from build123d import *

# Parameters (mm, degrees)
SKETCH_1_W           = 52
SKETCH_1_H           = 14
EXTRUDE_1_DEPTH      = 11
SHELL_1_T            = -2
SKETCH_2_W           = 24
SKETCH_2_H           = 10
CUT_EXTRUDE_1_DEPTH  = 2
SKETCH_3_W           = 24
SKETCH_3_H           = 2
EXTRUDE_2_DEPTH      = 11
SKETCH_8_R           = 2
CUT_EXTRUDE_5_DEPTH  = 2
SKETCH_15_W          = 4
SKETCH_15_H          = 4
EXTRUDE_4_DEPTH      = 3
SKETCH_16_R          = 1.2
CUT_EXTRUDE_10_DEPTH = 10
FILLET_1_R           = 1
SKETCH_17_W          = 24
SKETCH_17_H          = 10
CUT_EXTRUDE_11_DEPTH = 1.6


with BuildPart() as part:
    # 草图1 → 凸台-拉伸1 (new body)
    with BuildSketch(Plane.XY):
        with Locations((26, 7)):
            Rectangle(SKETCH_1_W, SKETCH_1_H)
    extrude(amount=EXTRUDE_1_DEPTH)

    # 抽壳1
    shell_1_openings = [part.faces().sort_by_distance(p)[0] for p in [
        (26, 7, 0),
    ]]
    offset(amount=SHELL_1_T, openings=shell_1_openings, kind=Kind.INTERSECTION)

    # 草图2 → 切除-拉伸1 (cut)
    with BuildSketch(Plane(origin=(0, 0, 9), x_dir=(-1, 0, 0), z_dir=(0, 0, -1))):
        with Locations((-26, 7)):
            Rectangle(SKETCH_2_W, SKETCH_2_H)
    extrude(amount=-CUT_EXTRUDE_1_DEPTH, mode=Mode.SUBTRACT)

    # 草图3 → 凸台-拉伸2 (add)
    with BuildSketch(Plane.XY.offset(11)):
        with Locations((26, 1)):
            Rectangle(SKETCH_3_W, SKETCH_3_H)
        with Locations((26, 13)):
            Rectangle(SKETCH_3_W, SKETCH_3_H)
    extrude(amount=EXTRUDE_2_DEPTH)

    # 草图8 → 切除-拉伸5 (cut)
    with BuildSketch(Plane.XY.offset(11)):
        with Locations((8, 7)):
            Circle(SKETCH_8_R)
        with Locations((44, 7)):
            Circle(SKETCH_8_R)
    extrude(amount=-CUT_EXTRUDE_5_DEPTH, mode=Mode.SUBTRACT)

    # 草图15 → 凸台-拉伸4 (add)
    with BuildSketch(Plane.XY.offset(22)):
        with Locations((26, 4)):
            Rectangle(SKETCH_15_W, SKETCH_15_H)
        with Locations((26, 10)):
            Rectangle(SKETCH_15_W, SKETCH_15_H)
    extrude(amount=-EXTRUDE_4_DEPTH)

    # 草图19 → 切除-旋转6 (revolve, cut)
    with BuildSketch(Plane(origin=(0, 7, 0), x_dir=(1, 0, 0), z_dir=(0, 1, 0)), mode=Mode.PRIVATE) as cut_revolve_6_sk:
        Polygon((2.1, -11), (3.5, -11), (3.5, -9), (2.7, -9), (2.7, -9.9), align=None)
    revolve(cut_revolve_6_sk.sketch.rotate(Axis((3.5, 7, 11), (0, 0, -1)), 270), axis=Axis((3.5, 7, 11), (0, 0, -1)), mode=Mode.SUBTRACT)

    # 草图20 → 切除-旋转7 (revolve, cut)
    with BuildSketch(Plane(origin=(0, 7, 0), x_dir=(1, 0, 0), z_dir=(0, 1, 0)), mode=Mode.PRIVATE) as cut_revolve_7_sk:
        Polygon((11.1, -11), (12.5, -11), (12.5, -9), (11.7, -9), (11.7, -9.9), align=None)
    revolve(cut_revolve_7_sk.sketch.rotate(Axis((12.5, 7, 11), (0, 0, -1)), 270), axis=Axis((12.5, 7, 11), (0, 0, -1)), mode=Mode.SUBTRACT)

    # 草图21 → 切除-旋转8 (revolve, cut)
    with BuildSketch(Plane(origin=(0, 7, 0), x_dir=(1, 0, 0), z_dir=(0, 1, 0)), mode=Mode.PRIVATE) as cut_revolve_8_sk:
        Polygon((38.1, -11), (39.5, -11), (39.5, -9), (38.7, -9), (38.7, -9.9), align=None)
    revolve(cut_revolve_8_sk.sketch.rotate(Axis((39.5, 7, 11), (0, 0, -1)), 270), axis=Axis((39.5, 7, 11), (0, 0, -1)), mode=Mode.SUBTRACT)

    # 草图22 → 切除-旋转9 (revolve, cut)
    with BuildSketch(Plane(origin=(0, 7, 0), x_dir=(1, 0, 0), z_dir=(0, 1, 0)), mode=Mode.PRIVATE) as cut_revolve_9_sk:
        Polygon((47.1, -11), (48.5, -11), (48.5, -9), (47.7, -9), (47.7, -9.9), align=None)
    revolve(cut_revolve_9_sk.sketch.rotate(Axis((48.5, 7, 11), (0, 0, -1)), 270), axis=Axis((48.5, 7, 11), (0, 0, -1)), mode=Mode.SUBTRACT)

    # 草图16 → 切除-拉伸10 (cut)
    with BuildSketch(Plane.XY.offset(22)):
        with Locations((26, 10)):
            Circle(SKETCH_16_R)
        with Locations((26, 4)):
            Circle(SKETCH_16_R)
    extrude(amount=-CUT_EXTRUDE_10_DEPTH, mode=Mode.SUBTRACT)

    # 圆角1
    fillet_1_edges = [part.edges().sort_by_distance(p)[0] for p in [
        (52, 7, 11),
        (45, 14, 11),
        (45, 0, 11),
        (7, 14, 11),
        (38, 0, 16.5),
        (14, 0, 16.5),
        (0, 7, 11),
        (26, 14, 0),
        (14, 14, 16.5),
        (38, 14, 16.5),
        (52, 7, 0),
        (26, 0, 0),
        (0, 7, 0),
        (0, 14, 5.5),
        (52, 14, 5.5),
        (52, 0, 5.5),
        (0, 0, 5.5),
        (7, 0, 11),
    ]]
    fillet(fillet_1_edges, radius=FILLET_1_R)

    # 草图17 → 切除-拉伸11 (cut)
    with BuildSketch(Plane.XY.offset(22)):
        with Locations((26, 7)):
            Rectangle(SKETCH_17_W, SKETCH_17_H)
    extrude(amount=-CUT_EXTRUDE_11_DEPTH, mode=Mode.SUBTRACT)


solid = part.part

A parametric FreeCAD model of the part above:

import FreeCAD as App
import Part
import Sketcher


def edges_at(feature, points):
    """Names of the edges that pass closest to the given points."""
    edges = feature.Shape.Edges
    near = lambda p: min(range(len(edges)), key=lambda i: edges[i].distToShape(Part.Vertex(*p))[0])
    return sorted({f"Edge{near(p) + 1}" for p in points})


def faces_at(feature, points):
    """Names of the faces that lie closest to the given points."""
    faces = feature.Shape.Faces
    near = lambda p: min(range(len(faces)), key=lambda i: faces[i].distToShape(Part.Vertex(*p))[0])
    return sorted({f"Face{near(p) + 1}" for p in points})


def add_polygon(sketch, points):
    """Adds a closed chain of lines whose ends are joined by coincident constraints."""
    first, n = sketch.GeometryCount, len(points)
    for a, b in zip(points, points[1:] + points[:1]):
        sketch.addGeometry(Part.LineSegment(App.Vector(*a, 0), App.Vector(*b, 0)), False)
    for i in range(n):
        sketch.addConstraint(Sketcher.Constraint("Coincident", first + i, 2, first + (i + 1) % n, 1))

doc = App.newDocument("Part")
params = doc.addObject("Spreadsheet::Sheet", "Params")
for row, (alias, value) in enumerate([
    ("sketch1_width", "52 mm"),
    ("sketch1_height", "14 mm"),
    ("pad1_length", "11 mm"),
    ("thickness_wall", "2 mm"),
    ("sketch2_width", "24 mm"),
    ("sketch2_height", "10 mm"),
    ("pocket1_length", "2 mm"),
    ("sketch3_width", "24 mm"),
    ("sketch3_height", "2 mm"),
    ("pad2_length", "11 mm"),
    ("sketch4_diameter", "4 mm"),
    ("pocket2_length", "2 mm"),
    ("sketch5_width", "4 mm"),
    ("pad3_length", "3 mm"),
    ("sketch6_height", "2 mm"),
    ("sketch6_width", "1.4 mm"),
    ("sketch6_width2", "0.8 mm"),
    ("sketch6_height2", "0.9 mm"),
    ("groove_angle", "360 deg"),
    ("sketch7_height", "2 mm"),
    ("sketch7_width", "1.4 mm"),
    ("sketch7_width2", "0.8 mm"),
    ("sketch7_height2", "0.9 mm"),
    ("groove2_angle", "360 deg"),
    ("sketch8_height", "2 mm"),
    ("sketch8_width", "1.4 mm"),
    ("sketch8_width2", "0.8 mm"),
    ("sketch8_height2", "0.9 mm"),
    ("groove3_angle", "360 deg"),
    ("sketch9_height", "2 mm"),
    ("sketch9_width", "1.4 mm"),
    ("sketch9_width2", "0.8 mm"),
    ("sketch9_height2", "0.9 mm"),
    ("groove4_angle", "360 deg"),
    ("sketch10_diameter", "2.4 mm"),
    ("pocket3_length", "10 mm"),
    ("fillet_radius", "1 mm"),
    ("sketch11_width", "24 mm"),
    ("sketch11_height", "10 mm"),
    ("pocket4_length", "1.6 mm"),
], start=1):
    params.set(f"A{row}", alias)
    params.set(f"B{row}", "=" + value)
    params.setAlias(f"B{row}", alias)

body = doc.addObject("PartDesign::Body", "Body")

# Sketch on XY plane
sketch1 = body.newObject("Sketcher::SketchObject", "Sketch")
sketch1.AttachmentSupport = (doc.getObject("XY_Plane"), [""])
sketch1.MapMode = "FlatFace"
add_polygon(sketch1, [(0, 14), (0, 0), (52, 0), (52, 14)])  # lines 0-3
sketch1.addConstraint(Sketcher.Constraint("Vertical", 0))
sketch1.addConstraint(Sketcher.Constraint("Horizontal", 1))
sketch1.addConstraint(Sketcher.Constraint("Vertical", 2))
sketch1.addConstraint(Sketcher.Constraint("Horizontal", 3))
sketch1.addConstraint(Sketcher.Constraint("Coincident", 0, 2, -1, 1))
sketch1.addConstraint(Sketcher.Constraint("DistanceX", 1, 1, 1, 2, 52.0))
sketch1.addConstraint(Sketcher.Constraint("DistanceY", 0, 2, 0, 1, 14.0))
sketch1.setExpression("Constraints[9]", "Params.sketch1_width")
sketch1.setExpression("Constraints[10]", "Params.sketch1_height")
pad1 = body.newObject("PartDesign::Pad", "Pad")
pad1.Profile = sketch1
pad1.setExpression("Length", "Params.pad1_length")
doc.recompute()

thickness = body.newObject("PartDesign::Thickness", "Thickness")
thickness.Base = (pad1, faces_at(pad1, [(26, 7, 0)]))
thickness.setExpression("Value", "Params.thickness_wall")
thickness.Reversed = True
thickness.Join = "Intersection"

# Sketch on XY plane
sketch2 = body.newObject("Sketcher::SketchObject", "Sketch001")
sketch2.AttachmentSupport = (doc.getObject("XY_Plane"), [""])
sketch2.MapMode = "FlatFace"
sketch2.AttachmentOffset = App.Placement(App.Vector(0, 0, 9), App.Rotation())
add_polygon(sketch2, [(38, 12), (38, 2), (14, 2), (14, 12)])  # lines 0-3
sketch2.addConstraint(Sketcher.Constraint("Vertical", 0))
sketch2.addConstraint(Sketcher.Constraint("Horizontal", 1))
sketch2.addConstraint(Sketcher.Constraint("Vertical", 2))
sketch2.addConstraint(Sketcher.Constraint("Horizontal", 3))
sketch2.addConstraint(Sketcher.Constraint("DistanceX", 1, 2, 1, 1, 24.0))
sketch2.addConstraint(Sketcher.Constraint("DistanceY", 0, 2, 0, 1, 10.0))
sketch2.addConstraint(Sketcher.Constraint("DistanceX", -1, 1, 0, 2, 38.0))
sketch2.addConstraint(Sketcher.Constraint("DistanceY", -1, 1, 0, 2, 2.0))
sketch2.setExpression("Constraints[8]", "Params.sketch2_width")
sketch2.setExpression("Constraints[9]", "Params.sketch2_height")
pocket1 = body.newObject("PartDesign::Pocket", "Pocket")
pocket1.Profile = sketch2
pocket1.setExpression("Length", "Params.pocket1_length")
pocket1.Reversed = True

# Sketch on XY plane
sketch3 = body.newObject("Sketcher::SketchObject", "Sketch002")
sketch3.AttachmentSupport = (doc.getObject("XY_Plane"), [""])
sketch3.MapMode = "FlatFace"
sketch3.AttachmentOffset = App.Placement(App.Vector(0, 0, 11), App.Rotation())
add_polygon(sketch3, [(14, 2), (14, 0), (38, 0), (38, 2)])  # lines 0-3
add_polygon(sketch3, [(14, 14), (14, 12), (38, 12), (38, 14)])  # lines 4-7
sketch3.addConstraint(Sketcher.Constraint("Vertical", 0))
sketch3.addConstraint(Sketcher.Constraint("Horizontal", 1))
sketch3.addConstraint(Sketcher.Constraint("Vertical", 2))
sketch3.addConstraint(Sketcher.Constraint("Horizontal", 3))
sketch3.addConstraint(Sketcher.Constraint("Vertical", 4))
sketch3.addConstraint(Sketcher.Constraint("Horizontal", 5))
sketch3.addConstraint(Sketcher.Constraint("Vertical", 6))
sketch3.addConstraint(Sketcher.Constraint("Horizontal", 7))
sketch3.addConstraint(Sketcher.Constraint("PointOnObject", 0, 2, -1))
sketch3.addConstraint(Sketcher.Constraint("Vertical", 3, 2, 4, 2))
sketch3.addConstraint(Sketcher.Constraint("Vertical", 2, 2, 5, 2))
sketch3.addConstraint(Sketcher.Constraint("Equal", 2, 4))
sketch3.addConstraint(Sketcher.Constraint("DistanceX", 1, 1, 1, 2, 24.0))
sketch3.addConstraint(Sketcher.Constraint("DistanceY", 0, 2, 0, 1, 2.0))
sketch3.addConstraint(Sketcher.Constraint("DistanceX", -1, 1, 0, 2, 14.0))
sketch3.addConstraint(Sketcher.Constraint("DistanceY", -1, 1, 4, 2, 12.0))
sketch3.setExpression("Constraints[20]", "Params.sketch3_width")
sketch3.setExpression("Constraints[21]", "Params.sketch3_height")
pad2 = body.newObject("PartDesign::Pad", "Pad001")
pad2.Profile = sketch3
pad2.setExpression("Length", "Params.pad2_length")

# Sketch on XY plane
sketch4 = body.newObject("Sketcher::SketchObject", "Sketch003")
sketch4.AttachmentSupport = (doc.getObject("XY_Plane"), [""])
sketch4.MapMode = "FlatFace"
sketch4.AttachmentOffset = App.Placement(App.Vector(0, 0, 11), App.Rotation())
sketch4.addGeometry(Part.Circle(App.Vector(8, 7, 0), App.Vector(0, 0, 1), 2), False)
sketch4.addGeometry(Part.Circle(App.Vector(44, 7, 0), App.Vector(0, 0, 1), 2), False)
sketch4.addConstraint(Sketcher.Constraint("Equal", 0, 1))
sketch4.addConstraint(Sketcher.Constraint("Horizontal", 0, 3, 1, 3))
sketch4.addConstraint(Sketcher.Constraint("Diameter", 0, 4.0))
sketch4.addConstraint(Sketcher.Constraint("DistanceX", -1, 1, 0, 3, 8.0))
sketch4.addConstraint(Sketcher.Constraint("DistanceY", -1, 1, 0, 3, 7.0))
sketch4.addConstraint(Sketcher.Constraint("DistanceX", -1, 1, 1, 3, 44.0))
sketch4.setExpression("Constraints[2]", "Params.sketch4_diameter")
pocket2 = body.newObject("PartDesign::Pocket", "Pocket001")
pocket2.Profile = sketch4
pocket2.setExpression("Length", "Params.pocket2_length")

# Sketch on XY plane
sketch5 = body.newObject("Sketcher::SketchObject", "Sketch004")
sketch5.AttachmentSupport = (doc.getObject("XY_Plane"), [""])
sketch5.MapMode = "FlatFace"
sketch5.AttachmentOffset = App.Placement(App.Vector(0, 0, 22), App.Rotation())
add_polygon(sketch5, [(24, 6), (24, 2), (28, 2), (28, 6)])  # lines 0-3
add_polygon(sketch5, [(24, 12), (24, 8), (28, 8), (28, 12)])  # lines 4-7
sketch5.addConstraint(Sketcher.Constraint("Vertical", 0))
sketch5.addConstraint(Sketcher.Constraint("Horizontal", 1))
sketch5.addConstraint(Sketcher.Constraint("Vertical", 2))
sketch5.addConstraint(Sketcher.Constraint("Horizontal", 3))
sketch5.addConstraint(Sketcher.Constraint("Vertical", 4))
sketch5.addConstraint(Sketcher.Constraint("Horizontal", 5))
sketch5.addConstraint(Sketcher.Constraint("Vertical", 6))
sketch5.addConstraint(Sketcher.Constraint("Horizontal", 7))
sketch5.addConstraint(Sketcher.Constraint("Vertical", 3, 2, 4, 2))
sketch5.addConstraint(Sketcher.Constraint("Vertical", 2, 2, 5, 2))
sketch5.addConstraint(Sketcher.Constraint("Equal", 7, 0))
sketch5.addConstraint(Sketcher.Constraint("Equal", 2, 4))
sketch5.addConstraint(Sketcher.Constraint("DistanceX", 1, 1, 1, 2, 4.0))
sketch5.addConstraint(Sketcher.Constraint("DistanceX", -1, 1, 0, 2, 24.0))
sketch5.addConstraint(Sketcher.Constraint("DistanceY", -1, 1, 0, 2, 2.0))
sketch5.addConstraint(Sketcher.Constraint("DistanceY", -1, 1, 4, 2, 8.0))
sketch5.setExpression("Constraints[20]", "Params.sketch5_width")
pad3 = body.newObject("PartDesign::Pad", "Pad002")
pad3.Profile = sketch5
pad3.setExpression("Length", "Params.pad3_length")
pad3.Reversed = True

# Sketch on XZ plane
sketch6 = body.newObject("Sketcher::SketchObject", "Sketch005")
sketch6.AttachmentSupport = (doc.getObject("XZ_Plane"), [""])
sketch6.MapMode = "FlatFace"
sketch6.AttachmentOffset = App.Placement(App.Vector(0, 0, -7), App.Rotation())
add_polygon(sketch6, [(2.1, 11), (3.5, 11), (3.5, 9), (2.7, 9), (2.7, 9.9)])  # lines 0-4
sketch6.addGeometry(Part.LineSegment(App.Vector(3.5, 11, 0), App.Vector(3.5, 9, 0)), True)  # axis
sketch6.addConstraint(Sketcher.Constraint("Horizontal", 0))
sketch6.addConstraint(Sketcher.Constraint("Vertical", 1))
sketch6.addConstraint(Sketcher.Constraint("Horizontal", 2))
sketch6.addConstraint(Sketcher.Constraint("Vertical", 3))
sketch6.addConstraint(Sketcher.Constraint("Vertical", 5))
sketch6.addConstraint(Sketcher.Constraint("Coincident", 5, 1, 0, 2))
sketch6.addConstraint(Sketcher.Constraint("Horizontal", 2, 2, 5, 2))
sketch6.addConstraint(Sketcher.Constraint("DistanceY", 1, 2, 1, 1, 2.0))
sketch6.addConstraint(Sketcher.Constraint("DistanceX", 0, 1, 0, 2, 1.4))
sketch6.addConstraint(Sketcher.Constraint("DistanceX", 2, 2, 2, 1, 0.8))
sketch6.addConstraint(Sketcher.Constraint("DistanceY", 3, 1, 3, 2, 0.9))
sketch6.addConstraint(Sketcher.Constraint("DistanceY", -1, 1, 0, 2, 11.0))
sketch6.addConstraint(Sketcher.Constraint("DistanceX", -1, 1, 0, 2, 3.5))
sketch6.setExpression("Constraints[12]", "Params.sketch6_height")
sketch6.setExpression("Constraints[13]", "Params.sketch6_width")
sketch6.setExpression("Constraints[14]", "Params.sketch6_width2")
sketch6.setExpression("Constraints[15]", "Params.sketch6_height2")
groove = body.newObject("PartDesign::Groove", "Groove")
groove.Profile = sketch6
groove.ReferenceAxis = (sketch6, ["Axis0"])
groove.setExpression("Angle", "Params.groove_angle")

# Sketch on XZ plane
sketch7 = body.newObject("Sketcher::SketchObject", "Sketch006")
sketch7.AttachmentSupport = (doc.getObject("XZ_Plane"), [""])
sketch7.MapMode = "FlatFace"
sketch7.AttachmentOffset = App.Placement(App.Vector(0, 0, -7), App.Rotation())
add_polygon(sketch7, [(11.1, 11), (12.5, 11), (12.5, 9), (11.7, 9), (11.7, 9.9)])  # lines 0-4
sketch7.addGeometry(Part.LineSegment(App.Vector(12.5, 11, 0), App.Vector(12.5, 9, 0)), True)  # axis
sketch7.addConstraint(Sketcher.Constraint("Horizontal", 0))
sketch7.addConstraint(Sketcher.Constraint("Vertical", 1))
sketch7.addConstraint(Sketcher.Constraint("Horizontal", 2))
sketch7.addConstraint(Sketcher.Constraint("Vertical", 3))
sketch7.addConstraint(Sketcher.Constraint("Vertical", 5))
sketch7.addConstraint(Sketcher.Constraint("Coincident", 5, 1, 0, 2))
sketch7.addConstraint(Sketcher.Constraint("Horizontal", 2, 2, 5, 2))
sketch7.addConstraint(Sketcher.Constraint("DistanceY", 1, 2, 1, 1, 2.0))
sketch7.addConstraint(Sketcher.Constraint("DistanceX", 0, 1, 0, 2, 1.4))
sketch7.addConstraint(Sketcher.Constraint("DistanceX", 2, 2, 2, 1, 0.8))
sketch7.addConstraint(Sketcher.Constraint("DistanceY", 3, 1, 3, 2, 0.9))
sketch7.addConstraint(Sketcher.Constraint("DistanceY", -1, 1, 0, 2, 11.0))
sketch7.addConstraint(Sketcher.Constraint("DistanceX", -1, 1, 0, 2, 12.5))
sketch7.setExpression("Constraints[12]", "Params.sketch7_height")
sketch7.setExpression("Constraints[13]", "Params.sketch7_width")
sketch7.setExpression("Constraints[14]", "Params.sketch7_width2")
sketch7.setExpression("Constraints[15]", "Params.sketch7_height2")
groove2 = body.newObject("PartDesign::Groove", "Groove001")
groove2.Profile = sketch7
groove2.ReferenceAxis = (sketch7, ["Axis0"])
groove2.setExpression("Angle", "Params.groove2_angle")

# Sketch on XZ plane
sketch8 = body.newObject("Sketcher::SketchObject", "Sketch007")
sketch8.AttachmentSupport = (doc.getObject("XZ_Plane"), [""])
sketch8.MapMode = "FlatFace"
sketch8.AttachmentOffset = App.Placement(App.Vector(0, 0, -7), App.Rotation())
add_polygon(sketch8, [(38.1, 11), (39.5, 11), (39.5, 9), (38.7, 9), (38.7, 9.9)])  # lines 0-4
sketch8.addGeometry(Part.LineSegment(App.Vector(39.5, 11, 0), App.Vector(39.5, 9, 0)), True)  # axis
sketch8.addConstraint(Sketcher.Constraint("Horizontal", 0))
sketch8.addConstraint(Sketcher.Constraint("Vertical", 1))
sketch8.addConstraint(Sketcher.Constraint("Horizontal", 2))
sketch8.addConstraint(Sketcher.Constraint("Vertical", 3))
sketch8.addConstraint(Sketcher.Constraint("Vertical", 5))
sketch8.addConstraint(Sketcher.Constraint("Coincident", 5, 1, 0, 2))
sketch8.addConstraint(Sketcher.Constraint("Horizontal", 2, 2, 5, 2))
sketch8.addConstraint(Sketcher.Constraint("DistanceY", 1, 2, 1, 1, 2.0))
sketch8.addConstraint(Sketcher.Constraint("DistanceX", 0, 1, 0, 2, 1.4))
sketch8.addConstraint(Sketcher.Constraint("DistanceX", 2, 2, 2, 1, 0.8))
sketch8.addConstraint(Sketcher.Constraint("DistanceY", 3, 1, 3, 2, 0.9))
sketch8.addConstraint(Sketcher.Constraint("DistanceY", -1, 1, 0, 2, 11.0))
sketch8.addConstraint(Sketcher.Constraint("DistanceX", -1, 1, 0, 2, 39.5))
sketch8.setExpression("Constraints[12]", "Params.sketch8_height")
sketch8.setExpression("Constraints[13]", "Params.sketch8_width")
sketch8.setExpression("Constraints[14]", "Params.sketch8_width2")
sketch8.setExpression("Constraints[15]", "Params.sketch8_height2")
groove3 = body.newObject("PartDesign::Groove", "Groove002")
groove3.Profile = sketch8
groove3.ReferenceAxis = (sketch8, ["Axis0"])
groove3.setExpression("Angle", "Params.groove3_angle")

# Sketch on XZ plane
sketch9 = body.newObject("Sketcher::SketchObject", "Sketch008")
sketch9.AttachmentSupport = (doc.getObject("XZ_Plane"), [""])
sketch9.MapMode = "FlatFace"
sketch9.AttachmentOffset = App.Placement(App.Vector(0, 0, -7), App.Rotation())
add_polygon(sketch9, [(47.1, 11), (48.5, 11), (48.5, 9), (47.7, 9), (47.7, 9.9)])  # lines 0-4
sketch9.addGeometry(Part.LineSegment(App.Vector(48.5, 11, 0), App.Vector(48.5, 9, 0)), True)  # axis
sketch9.addConstraint(Sketcher.Constraint("Horizontal", 0))
sketch9.addConstraint(Sketcher.Constraint("Vertical", 1))
sketch9.addConstraint(Sketcher.Constraint("Horizontal", 2))
sketch9.addConstraint(Sketcher.Constraint("Vertical", 3))
sketch9.addConstraint(Sketcher.Constraint("Vertical", 5))
sketch9.addConstraint(Sketcher.Constraint("Coincident", 5, 1, 0, 2))
sketch9.addConstraint(Sketcher.Constraint("Horizontal", 2, 2, 5, 2))
sketch9.addConstraint(Sketcher.Constraint("DistanceY", 1, 2, 1, 1, 2.0))
sketch9.addConstraint(Sketcher.Constraint("DistanceX", 0, 1, 0, 2, 1.4))
sketch9.addConstraint(Sketcher.Constraint("DistanceX", 2, 2, 2, 1, 0.8))
sketch9.addConstraint(Sketcher.Constraint("DistanceY", 3, 1, 3, 2, 0.9))
sketch9.addConstraint(Sketcher.Constraint("DistanceY", -1, 1, 0, 2, 11.0))
sketch9.addConstraint(Sketcher.Constraint("DistanceX", -1, 1, 0, 2, 48.5))
sketch9.setExpression("Constraints[12]", "Params.sketch9_height")
sketch9.setExpression("Constraints[13]", "Params.sketch9_width")
sketch9.setExpression("Constraints[14]", "Params.sketch9_width2")
sketch9.setExpression("Constraints[15]", "Params.sketch9_height2")
groove4 = body.newObject("PartDesign::Groove", "Groove003")
groove4.Profile = sketch9
groove4.ReferenceAxis = (sketch9, ["Axis0"])
groove4.setExpression("Angle", "Params.groove4_angle")

# Sketch on XY plane
sketch10 = body.newObject("Sketcher::SketchObject", "Sketch009")
sketch10.AttachmentSupport = (doc.getObject("XY_Plane"), [""])
sketch10.MapMode = "FlatFace"
sketch10.AttachmentOffset = App.Placement(App.Vector(0, 0, 22), App.Rotation())
sketch10.addGeometry(Part.Circle(App.Vector(26, 10, 0), App.Vector(0, 0, 1), 1.2), False)
sketch10.addGeometry(Part.Circle(App.Vector(26, 4, 0), App.Vector(0, 0, 1), 1.2), False)
sketch10.addConstraint(Sketcher.Constraint("Equal", 0, 1))
sketch10.addConstraint(Sketcher.Constraint("Vertical", 0, 3, 1, 3))
sketch10.addConstraint(Sketcher.Constraint("Diameter", 0, 2.4))
sketch10.addConstraint(Sketcher.Constraint("DistanceX", -1, 1, 0, 3, 26.0))
sketch10.addConstraint(Sketcher.Constraint("DistanceY", -1, 1, 0, 3, 10.0))
sketch10.addConstraint(Sketcher.Constraint("DistanceY", -1, 1, 1, 3, 4.0))
sketch10.setExpression("Constraints[2]", "Params.sketch10_diameter")
pocket3 = body.newObject("PartDesign::Pocket", "Pocket002")
pocket3.Profile = sketch10
pocket3.setExpression("Length", "Params.pocket3_length")
doc.recompute()

fillet = body.newObject("PartDesign::Fillet", "Fillet")
fillet.Base = (pocket3, edges_at(pocket3, [
    (52, 7, 11),
    (45, 14, 11),
    (45, 0, 11),
    (7, 14, 11),
    (38, 0, 16.5),
    (14, 0, 16.5),
    (0, 7, 11),
    (26, 14, 0),
    (14, 14, 16.5),
    (38, 14, 16.5),
    (52, 7, 0),
    (26, 0, 0),
    (0, 7, 0),
    (0, 14, 5.5),
    (52, 14, 5.5),
    (52, 0, 5.5),
    (0, 0, 5.5),
    (7, 0, 11),
]))
fillet.setExpression("Radius", "Params.fillet_radius")

# Sketch on XY plane
sketch11 = body.newObject("Sketcher::SketchObject", "Sketch010")
sketch11.AttachmentSupport = (doc.getObject("XY_Plane"), [""])
sketch11.MapMode = "FlatFace"
sketch11.AttachmentOffset = App.Placement(App.Vector(0, 0, 22), App.Rotation())
add_polygon(sketch11, [(14, 12), (14, 2), (38, 2), (38, 12)])  # lines 0-3
sketch11.addConstraint(Sketcher.Constraint("Vertical", 0))
sketch11.addConstraint(Sketcher.Constraint("Horizontal", 1))
sketch11.addConstraint(Sketcher.Constraint("Vertical", 2))
sketch11.addConstraint(Sketcher.Constraint("Horizontal", 3))
sketch11.addConstraint(Sketcher.Constraint("DistanceX", 1, 1, 1, 2, 24.0))
sketch11.addConstraint(Sketcher.Constraint("DistanceY", 0, 2, 0, 1, 10.0))
sketch11.addConstraint(Sketcher.Constraint("DistanceX", -1, 1, 0, 2, 14.0))
sketch11.addConstraint(Sketcher.Constraint("DistanceY", -1, 1, 0, 2, 2.0))
sketch11.setExpression("Constraints[8]", "Params.sketch11_width")
sketch11.setExpression("Constraints[9]", "Params.sketch11_height")
pocket4 = body.newObject("PartDesign::Pocket", "Pocket003")
pocket4.Profile = sketch11
pocket4.setExpression("Length", "Params.pocket4_length")

doc.recompute()
